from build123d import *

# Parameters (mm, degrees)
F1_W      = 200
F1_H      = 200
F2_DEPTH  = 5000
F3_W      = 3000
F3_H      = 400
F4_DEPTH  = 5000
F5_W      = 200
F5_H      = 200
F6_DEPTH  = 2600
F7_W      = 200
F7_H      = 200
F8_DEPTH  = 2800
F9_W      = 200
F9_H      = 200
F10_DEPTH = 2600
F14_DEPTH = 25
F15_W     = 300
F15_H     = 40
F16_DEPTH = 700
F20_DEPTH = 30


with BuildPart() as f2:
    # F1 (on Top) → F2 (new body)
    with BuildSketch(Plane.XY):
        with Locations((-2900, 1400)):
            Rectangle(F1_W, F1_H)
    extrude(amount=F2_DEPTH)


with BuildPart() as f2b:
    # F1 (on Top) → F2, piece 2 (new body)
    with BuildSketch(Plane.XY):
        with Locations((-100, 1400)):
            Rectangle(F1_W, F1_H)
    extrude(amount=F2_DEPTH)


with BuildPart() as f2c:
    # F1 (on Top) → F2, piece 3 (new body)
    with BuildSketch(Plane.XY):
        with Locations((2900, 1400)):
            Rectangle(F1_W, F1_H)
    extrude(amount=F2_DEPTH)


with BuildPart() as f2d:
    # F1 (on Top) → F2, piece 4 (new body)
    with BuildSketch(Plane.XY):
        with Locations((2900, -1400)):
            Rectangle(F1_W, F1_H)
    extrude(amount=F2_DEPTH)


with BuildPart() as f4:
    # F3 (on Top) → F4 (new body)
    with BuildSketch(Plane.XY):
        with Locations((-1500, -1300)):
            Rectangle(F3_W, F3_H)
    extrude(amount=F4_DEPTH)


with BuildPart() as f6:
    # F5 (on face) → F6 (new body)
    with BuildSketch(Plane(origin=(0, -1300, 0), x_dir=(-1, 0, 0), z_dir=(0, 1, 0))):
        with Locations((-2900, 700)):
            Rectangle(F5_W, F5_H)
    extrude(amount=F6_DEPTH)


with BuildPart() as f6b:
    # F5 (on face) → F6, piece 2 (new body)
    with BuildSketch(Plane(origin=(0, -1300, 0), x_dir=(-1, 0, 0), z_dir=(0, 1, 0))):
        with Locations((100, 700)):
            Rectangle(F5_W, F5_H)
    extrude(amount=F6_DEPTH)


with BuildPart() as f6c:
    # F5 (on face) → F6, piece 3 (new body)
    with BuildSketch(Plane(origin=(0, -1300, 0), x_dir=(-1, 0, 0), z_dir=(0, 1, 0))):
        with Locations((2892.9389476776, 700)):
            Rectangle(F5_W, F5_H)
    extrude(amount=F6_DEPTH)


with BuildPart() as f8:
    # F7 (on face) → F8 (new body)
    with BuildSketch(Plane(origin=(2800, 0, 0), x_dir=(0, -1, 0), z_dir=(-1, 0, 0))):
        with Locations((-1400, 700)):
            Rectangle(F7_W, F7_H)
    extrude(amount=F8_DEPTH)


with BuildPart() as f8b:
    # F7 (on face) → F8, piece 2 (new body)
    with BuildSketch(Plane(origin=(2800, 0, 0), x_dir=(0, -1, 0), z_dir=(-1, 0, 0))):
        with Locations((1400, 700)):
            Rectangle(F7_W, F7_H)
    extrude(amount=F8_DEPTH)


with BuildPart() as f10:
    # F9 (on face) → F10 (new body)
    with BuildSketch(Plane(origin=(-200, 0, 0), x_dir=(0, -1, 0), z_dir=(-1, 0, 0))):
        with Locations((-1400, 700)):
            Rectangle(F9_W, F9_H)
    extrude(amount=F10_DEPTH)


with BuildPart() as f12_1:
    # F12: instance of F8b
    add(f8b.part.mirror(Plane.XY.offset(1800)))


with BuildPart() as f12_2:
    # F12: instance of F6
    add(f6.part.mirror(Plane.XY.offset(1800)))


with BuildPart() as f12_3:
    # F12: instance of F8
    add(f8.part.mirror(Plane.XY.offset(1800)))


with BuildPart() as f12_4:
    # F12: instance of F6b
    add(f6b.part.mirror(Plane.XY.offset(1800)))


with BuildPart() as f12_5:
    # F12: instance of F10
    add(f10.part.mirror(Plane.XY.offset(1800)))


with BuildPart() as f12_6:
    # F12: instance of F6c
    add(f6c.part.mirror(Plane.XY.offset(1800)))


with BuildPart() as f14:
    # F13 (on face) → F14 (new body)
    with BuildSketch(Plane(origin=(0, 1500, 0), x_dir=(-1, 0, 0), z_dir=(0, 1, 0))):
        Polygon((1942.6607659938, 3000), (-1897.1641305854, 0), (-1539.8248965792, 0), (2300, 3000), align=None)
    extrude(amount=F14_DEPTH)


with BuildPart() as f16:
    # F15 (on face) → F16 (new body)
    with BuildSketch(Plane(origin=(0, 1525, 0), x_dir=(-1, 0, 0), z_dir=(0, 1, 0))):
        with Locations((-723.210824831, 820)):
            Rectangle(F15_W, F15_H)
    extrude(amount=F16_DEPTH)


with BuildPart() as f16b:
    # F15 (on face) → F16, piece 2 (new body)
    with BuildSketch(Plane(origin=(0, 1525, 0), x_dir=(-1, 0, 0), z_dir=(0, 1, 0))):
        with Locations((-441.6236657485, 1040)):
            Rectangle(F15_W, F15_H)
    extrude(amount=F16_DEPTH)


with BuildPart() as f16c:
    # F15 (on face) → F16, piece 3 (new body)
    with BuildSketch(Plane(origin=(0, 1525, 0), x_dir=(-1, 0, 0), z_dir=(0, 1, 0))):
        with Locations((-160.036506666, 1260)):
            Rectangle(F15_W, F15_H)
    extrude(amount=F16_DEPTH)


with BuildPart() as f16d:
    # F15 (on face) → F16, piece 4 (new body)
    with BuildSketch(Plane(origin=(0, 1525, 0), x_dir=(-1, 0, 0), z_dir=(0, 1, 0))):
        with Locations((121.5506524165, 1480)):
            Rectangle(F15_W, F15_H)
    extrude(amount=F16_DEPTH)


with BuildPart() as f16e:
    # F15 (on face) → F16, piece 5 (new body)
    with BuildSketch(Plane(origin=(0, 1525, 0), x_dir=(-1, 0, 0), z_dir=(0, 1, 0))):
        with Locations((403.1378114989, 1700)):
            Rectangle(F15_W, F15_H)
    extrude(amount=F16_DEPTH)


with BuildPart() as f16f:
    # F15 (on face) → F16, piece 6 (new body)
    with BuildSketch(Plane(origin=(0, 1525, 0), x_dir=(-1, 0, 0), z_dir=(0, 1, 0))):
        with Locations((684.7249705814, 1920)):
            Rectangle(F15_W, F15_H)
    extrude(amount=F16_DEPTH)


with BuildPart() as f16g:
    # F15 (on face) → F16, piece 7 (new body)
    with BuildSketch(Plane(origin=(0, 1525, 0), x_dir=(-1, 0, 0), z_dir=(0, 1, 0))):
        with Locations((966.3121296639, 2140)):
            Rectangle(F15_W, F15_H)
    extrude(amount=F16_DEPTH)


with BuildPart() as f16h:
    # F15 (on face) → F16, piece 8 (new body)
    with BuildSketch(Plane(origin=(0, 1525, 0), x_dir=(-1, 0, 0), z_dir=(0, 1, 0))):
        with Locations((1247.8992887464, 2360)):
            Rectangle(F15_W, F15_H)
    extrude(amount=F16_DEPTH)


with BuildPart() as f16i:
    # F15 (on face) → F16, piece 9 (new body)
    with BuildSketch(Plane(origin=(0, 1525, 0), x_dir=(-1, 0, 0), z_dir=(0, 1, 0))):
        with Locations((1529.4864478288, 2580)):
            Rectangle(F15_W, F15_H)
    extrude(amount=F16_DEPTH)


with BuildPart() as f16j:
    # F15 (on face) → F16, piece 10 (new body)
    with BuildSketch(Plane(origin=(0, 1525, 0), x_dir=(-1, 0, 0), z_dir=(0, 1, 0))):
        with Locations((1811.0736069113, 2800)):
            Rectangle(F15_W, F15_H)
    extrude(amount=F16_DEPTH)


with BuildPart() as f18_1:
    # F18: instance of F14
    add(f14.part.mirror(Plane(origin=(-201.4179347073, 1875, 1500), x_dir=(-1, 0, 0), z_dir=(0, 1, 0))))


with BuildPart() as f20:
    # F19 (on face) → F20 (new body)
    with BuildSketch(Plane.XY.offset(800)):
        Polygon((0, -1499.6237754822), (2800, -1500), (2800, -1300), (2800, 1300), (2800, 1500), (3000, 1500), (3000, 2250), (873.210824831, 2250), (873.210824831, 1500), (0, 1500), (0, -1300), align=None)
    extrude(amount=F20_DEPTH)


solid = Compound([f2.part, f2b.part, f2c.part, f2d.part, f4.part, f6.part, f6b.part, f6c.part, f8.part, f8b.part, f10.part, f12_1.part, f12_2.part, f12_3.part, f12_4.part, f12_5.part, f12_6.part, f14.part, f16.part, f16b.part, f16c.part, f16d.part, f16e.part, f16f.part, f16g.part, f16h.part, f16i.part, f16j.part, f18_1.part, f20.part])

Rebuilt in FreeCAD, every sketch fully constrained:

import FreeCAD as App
import Part
import Sketcher

V = App.Vector
Q = App.Units.Quantity


def add_polygon(sketch, points):
    """Adds a closed chain of lines whose ends are joined by coincident constraints."""
    first, n = sketch.GeometryCount, len(points)
    for a, b in zip(points, points[1:] + points[:1]):
        sketch.addGeometry(Part.LineSegment(App.Vector(*a, 0), App.Vector(*b, 0)), False)
    for i in range(n):
        sketch.addConstraint(Sketcher.Constraint("Coincident", first + i, 2, first + (i + 1) % n, 1))

doc = App.newDocument("Part")
body = doc.addObject("PartDesign::Body", "Body")

sketch1 = doc.addObject("Sketcher::SketchObject", "Sketch")
body.addObject(sketch1)
sketch1.AttachmentSupport = (doc.XY_Plane, [""])
sketch1.MapMode = "FlatFace"
add_polygon(sketch1, [(-3000, 1500), (-3000, 1300), (-2800, 1300), (-2800, 1500)])
sketch1.addConstraint(Sketcher.Constraint("Vertical", 0))
sketch1.addConstraint(Sketcher.Constraint("Horizontal", 1))
sketch1.addConstraint(Sketcher.Constraint("Vertical", 2))
sketch1.addConstraint(Sketcher.Constraint("Horizontal", 3))
sketch1.addConstraint(Sketcher.Constraint("Equal", 3, 0))
sketch1.addConstraint(Sketcher.Constraint("DistanceX", 1, 1, 1, 2, 200.0))
sketch1.addConstraint(Sketcher.Constraint("DistanceX", 0, 2, -1, 1, 3000.0))
sketch1.addConstraint(Sketcher.Constraint("DistanceY", -1, 1, 0, 2, 1300.0))
pad1 = doc.addObject("PartDesign::Pad", "Pad")
body.addObject(pad1)
pad1.Profile = sketch1
pad1.Length = 5000
body2 = doc.addObject("PartDesign::Body", "Body001")

sketch2 = doc.addObject("Sketcher::SketchObject", "Sketch001")
body2.addObject(sketch2)
sketch2.AttachmentSupport = (doc.getObject("XY_Plane001"), [""])
sketch2.MapMode = "FlatFace"
add_polygon(sketch2, [(-200, 1500), (-200, 1300), (0, 1300), (0, 1500)])
sketch2.addConstraint(Sketcher.Constraint("Vertical", 0))
sketch2.addConstraint(Sketcher.Constraint("Horizontal", 1))
sketch2.addConstraint(Sketcher.Constraint("Vertical", 2))
sketch2.addConstraint(Sketcher.Constraint("Horizontal", 3))
sketch2.addConstraint(Sketcher.Constraint("PointOnObject", 1, 2, -2))
sketch2.addConstraint(Sketcher.Constraint("Equal", 3, 0))
sketch2.addConstraint(Sketcher.Constraint("DistanceX", 1, 1, 1, 2, 200.0))
sketch2.addConstraint(Sketcher.Constraint("DistanceY", -1, 1, 0, 2, 1300.0))
pad2 = doc.addObject("PartDesign::Pad", "Pad001")
body2.addObject(pad2)
pad2.Profile = sketch2
pad2.Length = 5000
body3 = doc.addObject("PartDesign::Body", "Body002")

sketch3 = doc.addObject("Sketcher::SketchObject", "Sketch002")
body3.addObject(sketch3)
sketch3.AttachmentSupport = (doc.getObject("XY_Plane002"), [""])
sketch3.MapMode = "FlatFace"
add_polygon(sketch3, [(2800, 1500), (2800, 1300), (3000, 1300), (3000, 1500)])
sketch3.addConstraint(Sketcher.Constraint("Vertical", 0))
sketch3.addConstraint(Sketcher.Constraint("Horizontal", 1))
sketch3.addConstraint(Sketcher.Constraint("Vertical", 2))
sketch3.addConstraint(Sketcher.Constraint("Horizontal", 3))
sketch3.addConstraint(Sketcher.Constraint("Equal", 3, 0))
sketch3.addConstraint(Sketcher.Constraint("DistanceX", 1, 1, 1, 2, 200.0))
sketch3.addConstraint(Sketcher.Constraint("DistanceX", -1, 1, 0, 2, 2800.0))
sketch3.addConstraint(Sketcher.Constraint("DistanceY", -1, 1, 0, 2, 1300.0))
pad3 = doc.addObject("PartDesign::Pad", "Pad002")
body3.addObject(pad3)
pad3.Profile = sketch3
pad3.Length = 5000
body4 = doc.addObject("PartDesign::Body", "Body003")

sketch4 = doc.addObject("Sketcher::SketchObject", "Sketch003")
body4.addObject(sketch4)
sketch4.AttachmentSupport = (doc.getObject("XY_Plane003"), [""])
sketch4.MapMode = "FlatFace"
add_polygon(sketch4, [(2800, -1300), (2800, -1500), (3000, -1500), (3000, -1300)])
sketch4.addConstraint(Sketcher.Constraint("Vertical", 0))
sketch4.addConstraint(Sketcher.Constraint("Horizontal", 1))
sketch4.addConstraint(Sketcher.Constraint("Vertical", 2))
sketch4.addConstraint(Sketcher.Constraint("Horizontal", 3))
sketch4.addConstraint(Sketcher.Constraint("Equal", 3, 0))
sketch4.addConstraint(Sketcher.Constraint("DistanceX", 1, 1, 1, 2, 200.0))
sketch4.addConstraint(Sketcher.Constraint("DistanceX", -1, 1, 0, 2, 2800.0))
sketch4.addConstraint(Sketcher.Constraint("DistanceY", 0, 2, -1, 1, 1500.0))
pad4 = doc.addObject("PartDesign::Pad", "Pad003")
body4.addObject(pad4)
pad4.Profile = sketch4
pad4.Length = 5000
body5 = doc.addObject("PartDesign::Body", "Body004")

sketch5 = doc.addObject("Sketcher::SketchObject", "Sketch004")
body5.addObject(sketch5)
sketch5.AttachmentSupport = (doc.getObject("XY_Plane004"), [""])
sketch5.MapMode = "FlatFace"
add_polygon(sketch5, [(-3000, -1100), (-3000, -1500), (0, -1500), (0, -1100)])
sketch5.addConstraint(Sketcher.Constraint("Vertical", 0))
sketch5.addConstraint(Sketcher.Constraint("Horizontal", 1))
sketch5.addConstraint(Sketcher.Constraint("Vertical", 2))
sketch5.addConstraint(Sketcher.Constraint("Horizontal", 3))
sketch5.addConstraint(Sketcher.Constraint("PointOnObject", 1, 2, -2))
sketch5.addConstraint(Sketcher.Constraint("DistanceX", 1, 1, 1, 2, 3000.0))
sketch5.addConstraint(Sketcher.Constraint("DistanceY", 0, 2, 0, 1, 400.0))
sketch5.addConstraint(Sketcher.Constraint("DistanceY", 0, 2, -1, 1, 1500.0))
pad5 = doc.addObject("PartDesign::Pad", "Pad004")
body5.addObject(pad5)
pad5.Profile = sketch5
pad5.Length = 5000
body6 = doc.addObject("PartDesign::Body", "Body005")

sketch6 = doc.addObject("Sketcher::SketchObject", "Sketch005")
body6.addObject(sketch6)
sketch6.AttachmentSupport = (doc.getObject("XZ_Plane005"), [""])
sketch6.MapMode = "FlatFace"
sketch6.AttachmentOffset = App.Placement(V(0, 0, 1300), App.Rotation())
add_polygon(sketch6, [(3000, 800), (3000, 600), (2800, 600), (2800, 800)])
sketch6.addConstraint(Sketcher.Constraint("Vertical", 0))
sketch6.addConstraint(Sketcher.Constraint("Horizontal", 1))
sketch6.addConstraint(Sketcher.Constraint("Vertical", 2))
sketch6.addConstraint(Sketcher.Constraint("Horizontal", 3))
sketch6.addConstraint(Sketcher.Constraint("Equal", 3, 0))
sketch6.addConstraint(Sketcher.Constraint("DistanceX", 1, 2, 1, 1, 200.0))
sketch6.addConstraint(Sketcher.Constraint("DistanceX", -1, 1, 0, 2, 3000.0))
sketch6.addConstraint(Sketcher.Constraint("DistanceY", -1, 1, 0, 2, 600.0))
pad6 = doc.addObject("PartDesign::Pad", "Pad005")
body6.addObject(pad6)
pad6.Profile = sketch6
pad6.Length = 2600
pad6.Reversed = True
body7 = doc.addObject("PartDesign::Body", "Body006")

sketch7 = doc.addObject("Sketcher::SketchObject", "Sketch006")
body7.addObject(sketch7)
sketch7.AttachmentSupport = (doc.getObject("XZ_Plane006"), [""])
sketch7.MapMode = "FlatFace"
sketch7.AttachmentOffset = App.Placement(V(0, 0, 1300), App.Rotation())
add_polygon(sketch7, [(0, 800), (0, 600), (-200, 600), (-200, 800)])
sketch7.addConstraint(Sketcher.Constraint("Vertical", 0))
sketch7.addConstraint(Sketcher.Constraint("Horizontal", 1))
sketch7.addConstraint(Sketcher.Constraint("Vertical", 2))
sketch7.addConstraint(Sketcher.Constraint("Horizontal", 3))
sketch7.addConstraint(Sketcher.Constraint("PointOnObject", 0, 2, -2))
sketch7.addConstraint(Sketcher.Constraint("Equal", 3, 0))
sketch7.addConstraint(Sketcher.Constraint("DistanceX", 1, 2, 1, 1, 200.0))
sketch7.addConstraint(Sketcher.Constraint("DistanceY", -1, 1, 0, 2, 600.0))
pad7 = doc.addObject("PartDesign::Pad", "Pad006")
body7.addObject(pad7)
pad7.Profile = sketch7
pad7.Length = 2600
pad7.Reversed = True
body8 = doc.addObject("PartDesign::Body", "Body007")

sketch8 = doc.addObject("Sketcher::SketchObject", "Sketch007")
body8.addObject(sketch8)
sketch8.AttachmentSupport = (doc.getObject("XZ_Plane007"), [""])
sketch8.MapMode = "FlatFace"
sketch8.AttachmentOffset = App.Placement(V(0, 0, 1300), App.Rotation())
add_polygon(sketch8, [(-2793, 800), (-2793, 600), (-2993, 600), (-2993, 800)])
sketch8.addConstraint(Sketcher.Constraint("Vertical", 0))
sketch8.addConstraint(Sketcher.Constraint("Horizontal", 1))
sketch8.addConstraint(Sketcher.Constraint("Vertical", 2))
sketch8.addConstraint(Sketcher.Constraint("Horizontal", 3))
sketch8.addConstraint(Sketcher.Constraint("Equal", 3, 0))
sketch8.addConstraint(Sketcher.Constraint("DistanceX", 1, 2, 1, 1, 200.0))
sketch8.addConstraint(Sketcher.Constraint("DistanceY", -1, 1, 0, 2, 600.0))
sketch8.addConstraint(Sketcher.Constraint("DistanceX", 0, 2, -1, 1, 2792.938948))
pad8 = doc.addObject("PartDesign::Pad", "Pad007")
body8.addObject(pad8)
pad8.Profile = sketch8
pad8.Length = 2600
pad8.Reversed = True
body9 = doc.addObject("PartDesign::Body", "Body008")

sketch9 = doc.addObject("Sketcher::SketchObject", "Sketch008")
body9.addObject(sketch9)
sketch9.AttachmentSupport = (doc.getObject("YZ_Plane008"), [""])
sketch9.MapMode = "FlatFace"
sketch9.AttachmentOffset = App.Placement(V(0, 0, 2800), App.Rotation())
add_polygon(sketch9, [(1500, 800), (1500, 600), (1300, 600), (1300, 800)])
sketch9.addConstraint(Sketcher.Constraint("Vertical", 0))
sketch9.addConstraint(Sketcher.Constraint("Horizontal", 1))
sketch9.addConstraint(Sketcher.Constraint("Vertical", 2))
sketch9.addConstraint(Sketcher.Constraint("Horizontal", 3))
sketch9.addConstraint(Sketcher.Constraint("Equal", 3, 0))
sketch9.addConstraint(Sketcher.Constraint("DistanceX", 1, 2, 1, 1, 200.0))
sketch9.addConstraint(Sketcher.Constraint("DistanceX", -1, 1, 0, 2, 1500.0))
sketch9.addConstraint(Sketcher.Constraint("DistanceY", -1, 1, 0, 2, 600.0))
pad9 = doc.addObject("PartDesign::Pad", "Pad008")
body9.addObject(pad9)
pad9.Profile = sketch9
pad9.Length = 2800
pad9.Reversed = True
body10 = doc.addObject("PartDesign::Body", "Body009")

sketch10 = doc.addObject("Sketcher::SketchObject", "Sketch009")
body10.addObject(sketch10)
sketch10.AttachmentSupport = (doc.getObject("YZ_Plane009"), [""])
sketch10.MapMode = "FlatFace"
sketch10.AttachmentOffset = App.Placement(V(0, 0, 2800), App.Rotation())
add_polygon(sketch10, [(-1300, 800), (-1300, 600), (-1500, 600), (-1500, 800)])
sketch10.addConstraint(Sketcher.Constraint("Vertical", 0))
sketch10.addConstraint(Sketcher.Constraint("Horizontal", 1))
sketch10.addConstraint(Sketcher.Constraint("Vertical", 2))
sketch10.addConstraint(Sketcher.Constraint("Horizontal", 3))
sketch10.addConstraint(Sketcher.Constraint("Equal", 3, 0))
sketch10.addConstraint(Sketcher.Constraint("DistanceX", 1, 2, 1, 1, 200.0))
sketch10.addConstraint(Sketcher.Constraint("DistanceX", 0, 2, -1, 1, 1300.0))
sketch10.addConstraint(Sketcher.Constraint("DistanceY", -1, 1, 0, 2, 600.0))
pad10 = doc.addObject("PartDesign::Pad", "Pad009")
body10.addObject(pad10)
pad10.Profile = sketch10
pad10.Length = 2800
pad10.Reversed = True
body11 = doc.addObject("PartDesign::Body", "Body010")

sketch11 = doc.addObject("Sketcher::SketchObject", "Sketch010")
body11.addObject(sketch11)
sketch11.AttachmentSupport = (doc.getObject("YZ_Plane010"), [""])
sketch11.MapMode = "FlatFace"
sketch11.AttachmentOffset = App.Placement(V(0, 0, -200), App.Rotation())
add_polygon(sketch11, [(1500, 800), (1500, 600), (1300, 600), (1300, 800)])
sketch11.addConstraint(Sketcher.Constraint("Vertical", 0))
sketch11.addConstraint(Sketcher.Constraint("Horizontal", 1))
sketch11.addConstraint(Sketcher.Constraint("Vertical", 2))
sketch11.addConstraint(Sketcher.Constraint("Horizontal", 3))
sketch11.addConstraint(Sketcher.Constraint("Equal", 3, 0))
sketch11.addConstraint(Sketcher.Constraint("DistanceX", 1, 2, 1, 1, 200.0))
sketch11.addConstraint(Sketcher.Constraint("DistanceX", -1, 1, 0, 2, 1500.0))
sketch11.addConstraint(Sketcher.Constraint("DistanceY", -1, 1, 0, 2, 600.0))
pad11 = doc.addObject("PartDesign::Pad", "Pad010")
body11.addObject(pad11)
pad11.Profile = sketch11
pad11.Length = 2600
pad11.Reversed = True
body12 = doc.addObject("PartDesign::Body", "Body011")
doc.recompute()

mirroring = doc.addObject("Part::Mirroring", "Mirroring")
mirroring.Source = body10
mirroring.Base = V(0, 0, 1800)
mirroring.Normal = V(0, 0, 1)
body12.BaseFeature = mirroring
doc.recompute()
body13 = doc.addObject("PartDesign::Body", "Body012")
doc.recompute()

mirroring2 = doc.addObject("Part::Mirroring", "Mirroring001")
mirroring2.Source = body6
mirroring2.Base = V(0, 0, 1800)
mirroring2.Normal = V(0, 0, 1)
body13.BaseFeature = mirroring2
doc.recompute()
body14 = doc.addObject("PartDesign::Body", "Body013")
doc.recompute()

mirroring3 = doc.addObject("Part::Mirroring", "Mirroring002")
mirroring3.Source = body9
mirroring3.Base = V(0, 0, 1800)
mirroring3.Normal = V(0, 0, 1)
body14.BaseFeature = mirroring3
doc.recompute()
body15 = doc.addObject("PartDesign::Body", "Body014")
doc.recompute()

mirroring4 = doc.addObject("Part::Mirroring", "Mirroring003")
mirroring4.Source = body7
mirroring4.Base = V(0, 0, 1800)
mirroring4.Normal = V(0, 0, 1)
body15.BaseFeature = mirroring4
doc.recompute()
body16 = doc.addObject("PartDesign::Body", "Body015")
doc.recompute()

mirroring5 = doc.addObject("Part::Mirroring", "Mirroring004")
mirroring5.Source = body11
mirroring5.Base = V(0, 0, 1800)
mirroring5.Normal = V(0, 0, 1)
body16.BaseFeature = mirroring5
doc.recompute()
body17 = doc.addObject("PartDesign::Body", "Body016")
doc.recompute()

mirroring6 = doc.addObject("Part::Mirroring", "Mirroring005")
mirroring6.Source = body8
mirroring6.Base = V(0, 0, 1800)
mirroring6.Normal = V(0, 0, 1)
body17.BaseFeature = mirroring6
doc.recompute()
body18 = doc.addObject("PartDesign::Body", "Body017")

sketch12 = doc.addObject("Sketcher::SketchObject", "Sketch011")
body18.addObject(sketch12)
sketch12.AttachmentSupport = (doc.getObject("XZ_Plane017"), [""])
sketch12.MapMode = "FlatFace"
sketch12.AttachmentOffset = App.Placement(V(0, 0, -1500), App.Rotation())
add_polygon(sketch12, [(-1943, 3000), (1897, 0), (1540, 0), (-2300, 3000)])
sketch12.addConstraint(Sketcher.Constraint("Horizontal", 1))
sketch12.addConstraint(Sketcher.Constraint("Horizontal", 3))
sketch12.addConstraint(Sketcher.Constraint("PointOnObject", 0, 2, -1))
sketch12.addConstraint(Sketcher.Constraint("Parallel", 0, 2))
sketch12.addConstraint(Sketcher.Constraint("Angle", 0, Q("-38 deg")))
sketch12.addConstraint(Sketcher.Constraint("DistanceX", 2, 2, -1, 1, 2300.0))
sketch12.addConstraint(Sketcher.Constraint("DistanceY", -1, 1, 2, 2, 3000.0))
sketch12.addConstraint(Sketcher.Constraint("DistanceX", 1, 2, 1, 1, 357.339234))
pad12 = doc.addObject("PartDesign::Pad", "Pad011")
body18.addObject(pad12)
pad12.Profile = sketch12
pad12.Length = 25
pad12.Reversed = True
body19 = doc.addObject("PartDesign::Body", "Body018")

sketch13 = doc.addObject("Sketcher::SketchObject", "Sketch012")
body19.addObject(sketch13)
sketch13.AttachmentSupport = (doc.getObject("XZ_Plane018"), [""])
sketch13.MapMode = "FlatFace"
sketch13.AttachmentOffset = App.Placement(V(0, 0, -1525), App.Rotation())
add_polygon(sketch13, [(873, 840), (873, 800), (573, 800), (573, 840)])
sketch13.addConstraint(Sketcher.Constraint("Vertical", 0))
sketch13.addConstraint(Sketcher.Constraint("Horizontal", 1))
sketch13.addConstraint(Sketcher.Constraint("Vertical", 2))
sketch13.addConstraint(Sketcher.Constraint("Horizontal", 3))
sketch13.addConstraint(Sketcher.Constraint("DistanceX", 1, 2, 1, 1, 300.0))
sketch13.addConstraint(Sketcher.Constraint("DistanceY", 0, 2, 0, 1, 40.0))
sketch13.addConstraint(Sketcher.Constraint("DistanceY", -1, 1, 0, 2, 800.0))
sketch13.addConstraint(Sketcher.Constraint("DistanceX", -1, 1, 0, 2, 873.210825))
pad13 = doc.addObject("PartDesign::Pad", "Pad012")
body19.addObject(pad13)
pad13.Profile = sketch13
pad13.Length = 700
pad13.Reversed = True
body20 = doc.addObject("PartDesign::Body", "Body019")

sketch14 = doc.addObject("Sketcher::SketchObject", "Sketch013")
body20.addObject(sketch14)
sketch14.AttachmentSupport = (doc.getObject("XZ_Plane019"), [""])
sketch14.MapMode = "FlatFace"
sketch14.AttachmentOffset = App.Placement(V(0, 0, -1525), App.Rotation())
add_polygon(sketch14, [(592, 1060), (592, 1020), (292, 1020), (292, 1060)])
sketch14.addConstraint(Sketcher.Constraint("Vertical", 0))
sketch14.addConstraint(Sketcher.Constraint("Horizontal", 1))
sketch14.addConstraint(Sketcher.Constraint("Vertical", 2))
sketch14.addConstraint(Sketcher.Constraint("Horizontal", 3))
sketch14.addConstraint(Sketcher.Constraint("DistanceX", 1, 2, 1, 1, 300.0))
sketch14.addConstraint(Sketcher.Constraint("DistanceY", 0, 2, 0, 1, 40.0))
sketch14.addConstraint(Sketcher.Constraint("DistanceY", -1, 1, 0, 2, 1020.0))
sketch14.addConstraint(Sketcher.Constraint("DistanceX", -1, 1, 0, 2, 591.623666))
pad14 = doc.addObject("PartDesign::Pad", "Pad013")
body20.addObject(pad14)
pad14.Profile = sketch14
pad14.Length = 700
pad14.Reversed = True
body21 = doc.addObject("PartDesign::Body", "Body020")

sketch15 = doc.addObject("Sketcher::SketchObject", "Sketch014")
body21.addObject(sketch15)
sketch15.AttachmentSupport = (doc.getObject("XZ_Plane020"), [""])
sketch15.MapMode = "FlatFace"
sketch15.AttachmentOffset = App.Placement(V(0, 0, -1525), App.Rotation())
add_polygon(sketch15, [(310, 1280), (310, 1240), (10, 1240), (10, 1280)])
sketch15.addConstraint(Sketcher.Constraint("Vertical", 0))
sketch15.addConstraint(Sketcher.Constraint("Horizontal", 1))
sketch15.addConstraint(Sketcher.Constraint("Vertical", 2))
sketch15.addConstraint(Sketcher.Constraint("Horizontal", 3))
sketch15.addConstraint(Sketcher.Constraint("DistanceX", 1, 2, 1, 1, 300.0))
sketch15.addConstraint(Sketcher.Constraint("DistanceY", 0, 2, 0, 1, 40.0))
sketch15.addConstraint(Sketcher.Constraint("DistanceY", -1, 1, 0, 2, 1240.0))
sketch15.addConstraint(Sketcher.Constraint("DistanceX", -1, 1, 0, 2, 310.036507))
pad15 = doc.addObject("PartDesign::Pad", "Pad014")
body21.addObject(pad15)
pad15.Profile = sketch15
pad15.Length = 700
pad15.Reversed = True
body22 = doc.addObject("PartDesign::Body", "Body021")

sketch16 = doc.addObject("Sketcher::SketchObject", "Sketch015")
body22.addObject(sketch16)
sketch16.AttachmentSupport = (doc.getObject("XZ_Plane021"), [""])
sketch16.MapMode = "FlatFace"
sketch16.AttachmentOffset = App.Placement(V(0, 0, -1525), App.Rotation())
add_polygon(sketch16, [(28, 1500), (28, 1460), (-272, 1460), (-272, 1500)])
sketch16.addConstraint(Sketcher.Constraint("Vertical", 0))
sketch16.addConstraint(Sketcher.Constraint("Horizontal", 1))
sketch16.addConstraint(Sketcher.Constraint("Vertical", 2))
sketch16.addConstraint(Sketcher.Constraint("Horizontal", 3))
sketch16.addConstraint(Sketcher.Constraint("DistanceX", 1, 2, 1, 1, 300.0))
sketch16.addConstraint(Sketcher.Constraint("DistanceY", 0, 2, 0, 1, 40.0))
sketch16.addConstraint(Sketcher.Constraint("DistanceY", -1, 1, 0, 2, 1460.0))
sketch16.addConstraint(Sketcher.Constraint("DistanceX", -1, 1, 0, 2, 28.449348))
pad16 = doc.addObject("PartDesign::Pad", "Pad015")
body22.addObject(pad16)
pad16.Profile = sketch16
pad16.Length = 700
pad16.Reversed = True
body23 = doc.addObject("PartDesign::Body", "Body022")

sketch17 = doc.addObject("Sketcher::SketchObject", "Sketch016")
body23.addObject(sketch17)
sketch17.AttachmentSupport = (doc.getObject("XZ_Plane022"), [""])
sketch17.MapMode = "FlatFace"
sketch17.AttachmentOffset = App.Placement(V(0, 0, -1525), App.Rotation())
add_polygon(sketch17, [(-253, 1720), (-253, 1680), (-553, 1680), (-553, 1720)])
sketch17.addConstraint(Sketcher.Constraint("Vertical", 0))
sketch17.addConstraint(Sketcher.Constraint("Horizontal", 1))
sketch17.addConstraint(Sketcher.Constraint("Vertical", 2))
sketch17.addConstraint(Sketcher.Constraint("Horizontal", 3))
sketch17.addConstraint(Sketcher.Constraint("DistanceX", 1, 2, 1, 1, 300.0))
sketch17.addConstraint(Sketcher.Constraint("DistanceY", 0, 2, 0, 1, 40.0))
sketch17.addConstraint(Sketcher.Constraint("DistanceY", -1, 1, 0, 2, 1680.0))
sketch17.addConstraint(Sketcher.Constraint("DistanceX", 0, 2, -1, 1, 253.137811))
pad17 = doc.addObject("PartDesign::Pad", "Pad016")
body23.addObject(pad17)
pad17.Profile = sketch17
pad17.Length = 700
pad17.Reversed = True
body24 = doc.addObject("PartDesign::Body", "Body023")

sketch18 = doc.addObject("Sketcher::SketchObject", "Sketch017")
body24.addObject(sketch18)
sketch18.AttachmentSupport = (doc.getObject("XZ_Plane023"), [""])
sketch18.MapMode = "FlatFace"
sketch18.AttachmentOffset = App.Placement(V(0, 0, -1525), App.Rotation())
add_polygon(sketch18, [(-535, 1940), (-535, 1900), (-835, 1900), (-835, 1940)])
sketch18.addConstraint(Sketcher.Constraint("Vertical", 0))
sketch18.addConstraint(Sketcher.Constraint("Horizontal", 1))
sketch18.addConstraint(Sketcher.Constraint("Vertical", 2))
sketch18.addConstraint(Sketcher.Constraint("Horizontal", 3))
sketch18.addConstraint(Sketcher.Constraint("DistanceX", 1, 2, 1, 1, 300.0))
sketch18.addConstraint(Sketcher.Constraint("DistanceY", 0, 2, 0, 1, 40.0))
sketch18.addConstraint(Sketcher.Constraint("DistanceY", -1, 1, 0, 2, 1900.0))
sketch18.addConstraint(Sketcher.Constraint("DistanceX", 0, 2, -1, 1, 534.724971))
pad18 = doc.addObject("PartDesign::Pad", "Pad017")
body24.addObject(pad18)
pad18.Profile = sketch18
pad18.Length = 700
pad18.Reversed = True
body25 = doc.addObject("PartDesign::Body", "Body024")

sketch19 = doc.addObject("Sketcher::SketchObject", "Sketch018")
body25.addObject(sketch19)
sketch19.AttachmentSupport = (doc.getObject("XZ_Plane024"), [""])
sketch19.MapMode = "FlatFace"
sketch19.AttachmentOffset = App.Placement(V(0, 0, -1525), App.Rotation())
add_polygon(sketch19, [(-816, 2160), (-816, 2120), (-1116, 2120), (-1116, 2160)])
sketch19.addConstraint(Sketcher.Constraint("Vertical", 0))
sketch19.addConstraint(Sketcher.Constraint("Horizontal", 1))
sketch19.addConstraint(Sketcher.Constraint("Vertical", 2))
sketch19.addConstraint(Sketcher.Constraint("Horizontal", 3))
sketch19.addConstraint(Sketcher.Constraint("DistanceX", 1, 2, 1, 1, 300.0))
sketch19.addConstraint(Sketcher.Constraint("DistanceY", 0, 2, 0, 1, 40.0))
sketch19.addConstraint(Sketcher.Constraint("DistanceY", -1, 1, 0, 2, 2120.0))
sketch19.addConstraint(Sketcher.Constraint("DistanceX", 0, 2, -1, 1, 816.31213))
pad19 = doc.addObject("PartDesign::Pad", "Pad018")
body25.addObject(pad19)
pad19.Profile = sketch19
pad19.Length = 700
pad19.Reversed = True
body26 = doc.addObject("PartDesign::Body", "Body025")

sketch20 = doc.addObject("Sketcher::SketchObject", "Sketch019")
body26.addObject(sketch20)
sketch20.AttachmentSupport = (doc.getObject("XZ_Plane025"), [""])
sketch20.MapMode = "FlatFace"
sketch20.AttachmentOffset = App.Placement(V(0, 0, -1525), App.Rotation())
add_polygon(sketch20, [(-1098, 2380), (-1098, 2340), (-1398, 2340), (-1398, 2380)])
sketch20.addConstraint(Sketcher.Constraint("Vertical", 0))
sketch20.addConstraint(Sketcher.Constraint("Horizontal", 1))
sketch20.addConstraint(Sketcher.Constraint("Vertical", 2))
sketch20.addConstraint(Sketcher.Constraint("Horizontal", 3))
sketch20.addConstraint(Sketcher.Constraint("DistanceX", 1, 2, 1, 1, 300.0))
sketch20.addConstraint(Sketcher.Constraint("DistanceY", 0, 2, 0, 1, 40.0))
sketch20.addConstraint(Sketcher.Constraint("DistanceY", -1, 1, 0, 2, 2340.0))
sketch20.addConstraint(Sketcher.Constraint("DistanceX", 0, 2, -1, 1, 1097.899289))
pad20 = doc.addObject("PartDesign::Pad", "Pad019")
body26.addObject(pad20)
pad20.Profile = sketch20
pad20.Length = 700
pad20.Reversed = True
body27 = doc.addObject("PartDesign::Body", "Body026")

sketch21 = doc.addObject("Sketcher::SketchObject", "Sketch020")
body27.addObject(sketch21)
sketch21.AttachmentSupport = (doc.getObject("XZ_Plane026"), [""])
sketch21.MapMode = "FlatFace"
sketch21.AttachmentOffset = App.Placement(V(0, 0, -1525), App.Rotation())
add_polygon(sketch21, [(-1379, 2600), (-1379, 2560), (-1679, 2560), (-1679, 2600)])
sketch21.addConstraint(Sketcher.Constraint("Vertical", 0))
sketch21.addConstraint(Sketcher.Constraint("Horizontal", 1))
sketch21.addConstraint(Sketcher.Constraint("Vertical", 2))
sketch21.addConstraint(Sketcher.Constraint("Horizontal", 3))
sketch21.addConstraint(Sketcher.Constraint("DistanceX", 1, 2, 1, 1, 300.0))
sketch21.addConstraint(Sketcher.Constraint("DistanceY", 0, 2, 0, 1, 40.0))
sketch21.addConstraint(Sketcher.Constraint("DistanceY", -1, 1, 0, 2, 2560.0))
sketch21.addConstraint(Sketcher.Constraint("DistanceX", 0, 2, -1, 1, 1379.486448))
pad21 = doc.addObject("PartDesign::Pad", "Pad020")
body27.addObject(pad21)
pad21.Profile = sketch21
pad21.Length = 700
pad21.Reversed = True
body28 = doc.addObject("PartDesign::Body", "Body027")

sketch22 = doc.addObject("Sketcher::SketchObject", "Sketch021")
body28.addObject(sketch22)
sketch22.AttachmentSupport = (doc.getObject("XZ_Plane027"), [""])
sketch22.MapMode = "FlatFace"
sketch22.AttachmentOffset = App.Placement(V(0, 0, -1525), App.Rotation())
add_polygon(sketch22, [(-1661, 2820), (-1661, 2780), (-1961, 2780), (-1961, 2820)])
sketch22.addConstraint(Sketcher.Constraint("Vertical", 0))
sketch22.addConstraint(Sketcher.Constraint("Horizontal", 1))
sketch22.addConstraint(Sketcher.Constraint("Vertical", 2))
sketch22.addConstraint(Sketcher.Constraint("Horizontal", 3))
sketch22.addConstraint(Sketcher.Constraint("DistanceX", 1, 2, 1, 1, 300.0))
sketch22.addConstraint(Sketcher.Constraint("DistanceY", 0, 2, 0, 1, 40.0))
sketch22.addConstraint(Sketcher.Constraint("DistanceY", -1, 1, 0, 2, 2780.0))
sketch22.addConstraint(Sketcher.Constraint("DistanceX", 0, 2, -1, 1, 1661.073607))
pad22 = doc.addObject("PartDesign::Pad", "Pad021")
body28.addObject(pad22)
pad22.Profile = sketch22
pad22.Length = 700
pad22.Reversed = True
body29 = doc.addObject("PartDesign::Body", "Body028")
doc.recompute()

mirroring7 = doc.addObject("Part::Mirroring", "Mirroring006")
mirroring7.Source = body18
mirroring7.Base = V(-201.417935, 1875, 1500)
mirroring7.Normal = V(0, 1, 0)
body29.BaseFeature = mirroring7
doc.recompute()
body30 = doc.addObject("PartDesign::Body", "Body029")

sketch23 = doc.addObject("Sketcher::SketchObject", "Sketch022")
body30.addObject(sketch23)
sketch23.AttachmentSupport = (doc.getObject("XY_Plane029"), [""])
sketch23.MapMode = "FlatFace"
sketch23.AttachmentOffset = App.Placement(V(0, 0, 800), App.Rotation())
add_polygon(sketch23, [(0, -1500), (2800, -1500), (2800, 1500), (3000, 1500), (3000, 2250), (873, 2250), (873, 1500), (0, 1500)])
sketch23.addConstraint(Sketcher.Constraint("Vertical", 1))
sketch23.addConstraint(Sketcher.Constraint("Horizontal", 2))
sketch23.addConstraint(Sketcher.Constraint("Vertical", 3))
sketch23.addConstraint(Sketcher.Constraint("Horizontal", 4))
sketch23.addConstraint(Sketcher.Constraint("Vertical", 5))
sketch23.addConstraint(Sketcher.Constraint("Horizontal", 6))
sketch23.addConstraint(Sketcher.Constraint("Vertical", 7))
sketch23.addConstraint(Sketcher.Constraint("PointOnObject", 6, 2, -2))
sketch23.addConstraint(Sketcher.Constraint("Horizontal", 2, 2, 5, 2))
sketch23.addConstraint(Sketcher.Constraint("DistanceX", 2, 1, 2, 2, 200.0))
sketch23.addConstraint(Sketcher.Constraint("DistanceY", 1, 1, 1, 2, 3000.0))
sketch23.addConstraint(Sketcher.Constraint("DistanceY", 3, 1, 3, 2, 750.0))
sketch23.addConstraint(Sketcher.Constraint("DistanceX", -1, 1, 0, 2, 2800.0))
sketch23.addConstraint(Sketcher.Constraint("DistanceY", 0, 2, -1, 1, 1500.0))
sketch23.addConstraint(Sketcher.Constraint("DistanceX", 4, 2, 4, 1, 2126.789175))
sketch23.addConstraint(Sketcher.Constraint("DistanceY", 7, 2, 7, 1, 2999.623775))
pad23 = doc.addObject("PartDesign::Pad", "Pad022")
body30.addObject(pad23)
pad23.Profile = sketch23
pad23.Length = 30

doc.recompute()
